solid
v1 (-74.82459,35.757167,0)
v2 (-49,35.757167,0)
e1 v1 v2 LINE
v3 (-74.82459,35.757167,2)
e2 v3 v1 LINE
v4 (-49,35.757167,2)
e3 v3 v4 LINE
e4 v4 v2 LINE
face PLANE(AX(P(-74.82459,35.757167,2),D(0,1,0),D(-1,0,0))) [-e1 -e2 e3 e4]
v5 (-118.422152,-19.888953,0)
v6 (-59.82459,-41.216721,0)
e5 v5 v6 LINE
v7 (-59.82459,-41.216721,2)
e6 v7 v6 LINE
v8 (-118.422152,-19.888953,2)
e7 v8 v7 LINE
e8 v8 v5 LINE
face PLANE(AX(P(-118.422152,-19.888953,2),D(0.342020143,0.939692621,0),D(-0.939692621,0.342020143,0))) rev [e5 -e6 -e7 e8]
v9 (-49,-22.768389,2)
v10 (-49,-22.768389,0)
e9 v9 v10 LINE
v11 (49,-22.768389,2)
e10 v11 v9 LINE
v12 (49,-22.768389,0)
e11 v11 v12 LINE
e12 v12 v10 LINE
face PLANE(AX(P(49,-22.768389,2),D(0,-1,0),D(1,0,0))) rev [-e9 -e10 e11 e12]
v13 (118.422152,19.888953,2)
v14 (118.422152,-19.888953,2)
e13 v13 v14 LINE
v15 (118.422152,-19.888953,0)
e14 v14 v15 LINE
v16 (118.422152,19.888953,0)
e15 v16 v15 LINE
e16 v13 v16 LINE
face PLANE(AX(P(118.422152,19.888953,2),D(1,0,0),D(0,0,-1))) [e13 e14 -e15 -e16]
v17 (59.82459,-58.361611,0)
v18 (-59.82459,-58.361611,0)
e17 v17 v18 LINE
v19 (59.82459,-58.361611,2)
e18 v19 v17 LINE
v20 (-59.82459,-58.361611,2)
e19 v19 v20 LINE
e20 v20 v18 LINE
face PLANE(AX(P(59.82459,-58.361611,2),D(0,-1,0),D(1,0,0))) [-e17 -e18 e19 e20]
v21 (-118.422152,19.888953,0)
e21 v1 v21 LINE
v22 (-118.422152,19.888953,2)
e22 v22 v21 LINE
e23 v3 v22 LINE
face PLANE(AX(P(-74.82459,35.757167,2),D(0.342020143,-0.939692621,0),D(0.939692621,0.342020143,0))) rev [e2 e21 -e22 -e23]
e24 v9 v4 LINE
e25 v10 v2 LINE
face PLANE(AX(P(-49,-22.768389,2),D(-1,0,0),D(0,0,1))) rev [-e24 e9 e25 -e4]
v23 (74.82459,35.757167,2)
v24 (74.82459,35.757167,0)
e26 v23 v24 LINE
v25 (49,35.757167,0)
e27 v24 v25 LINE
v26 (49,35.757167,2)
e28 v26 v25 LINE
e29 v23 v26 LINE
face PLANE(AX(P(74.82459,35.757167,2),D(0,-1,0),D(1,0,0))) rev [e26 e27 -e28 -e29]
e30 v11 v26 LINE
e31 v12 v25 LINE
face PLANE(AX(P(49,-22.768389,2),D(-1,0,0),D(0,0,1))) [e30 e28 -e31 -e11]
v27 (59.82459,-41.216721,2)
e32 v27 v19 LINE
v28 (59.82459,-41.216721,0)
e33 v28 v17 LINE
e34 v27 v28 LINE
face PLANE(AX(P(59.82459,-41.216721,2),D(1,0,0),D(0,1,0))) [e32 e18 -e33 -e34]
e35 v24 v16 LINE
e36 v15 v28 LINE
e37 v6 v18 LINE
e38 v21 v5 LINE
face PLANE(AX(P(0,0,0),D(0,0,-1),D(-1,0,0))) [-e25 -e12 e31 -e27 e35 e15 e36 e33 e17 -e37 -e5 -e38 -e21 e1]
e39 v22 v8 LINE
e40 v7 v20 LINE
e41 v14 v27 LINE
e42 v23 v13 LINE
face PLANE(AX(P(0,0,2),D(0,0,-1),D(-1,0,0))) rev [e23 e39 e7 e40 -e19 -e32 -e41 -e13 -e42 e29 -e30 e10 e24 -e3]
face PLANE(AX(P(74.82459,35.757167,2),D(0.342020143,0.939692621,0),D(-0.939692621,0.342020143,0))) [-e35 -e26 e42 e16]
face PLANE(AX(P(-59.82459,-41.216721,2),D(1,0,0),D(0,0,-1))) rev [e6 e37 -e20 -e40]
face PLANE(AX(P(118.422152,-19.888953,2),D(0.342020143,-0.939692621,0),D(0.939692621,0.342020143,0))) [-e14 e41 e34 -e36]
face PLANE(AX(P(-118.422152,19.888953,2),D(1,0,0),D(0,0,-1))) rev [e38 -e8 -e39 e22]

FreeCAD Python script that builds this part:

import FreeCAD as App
import Part
import Sketcher

V = App.Vector
Q = App.Units.Quantity

doc = App.newDocument("Part")
body = doc.addObject("PartDesign::Body", "Body")

sketch1 = body.newObject("Sketcher::SketchObject", "Sketch")
sketch1.AttachmentSupport = (doc.getObject("XY_Plane"), [""])
sketch1.MapMode = "FlatFace"
sketch1.addGeometry([
    Part.LineSegment(V(-60, -58, 0), V(60, -58, 0)),
    Part.LineSegment(V(60, -58, 0), V(60, -41, 0)),
    Part.LineSegment(V(60, -41, 0), V(118, -20, 0)),
    Part.LineSegment(V(118, -20, 0), V(118, 20, 0)),
    Part.LineSegment(V(118, 20, 0), V(75, 36, 0)),
    Part.LineSegment(V(75, 36, 0), V(49, 36, 0)),
    Part.LineSegment(V(49, 36, 0), V(49, -23, 0)),
    Part.LineSegment(V(49, -23, 0), V(-49, -23, 0)),
    Part.LineSegment(V(-49, -23, 0), V(-49, 36, 0)),
    Part.LineSegment(V(-49, 36, 0), V(-75, 36, 0)),
    Part.LineSegment(V(-75, 36, 0), V(-118, 20, 0)),
    Part.LineSegment(V(-118, 20, 0), V(-118, -20, 0)),
    Part.LineSegment(V(-118, -20, 0), V(-60, -41, 0)),
    Part.LineSegment(V(-60, -41, 0), V(-60, -58, 0)),
], False)
sketch1.addConstraint([
    Sketcher.Constraint("Coincident", 0, 2, 1, 1),
    Sketcher.Constraint("Coincident", 1, 2, 2, 1),
    Sketcher.Constraint("Coincident", 2, 2, 3, 1),
    Sketcher.Constraint("Coincident", 3, 2, 4, 1),
    Sketcher.Constraint("Coincident", 4, 2, 5, 1),
    Sketcher.Constraint("Coincident", 5, 2, 6, 1),
    Sketcher.Constraint("Coincident", 6, 2, 7, 1),
    Sketcher.Constraint("Coincident", 7, 2, 8, 1),
    Sketcher.Constraint("Coincident", 8, 2, 9, 1),
    Sketcher.Constraint("Coincident", 9, 2, 10, 1),
    Sketcher.Constraint("Coincident", 10, 2, 11, 1),
    Sketcher.Constraint("Coincident", 11, 2, 12, 1),
    Sketcher.Constraint("Coincident", 12, 2, 13, 1),
    Sketcher.Constraint("Coincident", 13, 2, 0, 1),
    Sketcher.Constraint("Horizontal", 0),
    Sketcher.Constraint("Vertical", 1),
    Sketcher.Constraint("Vertical", 3),
    Sketcher.Constraint("Horizontal", 5),
    Sketcher.Constraint("Vertical", 6),
    Sketcher.Constraint("Horizontal", 7),
    Sketcher.Constraint("Vertical", 8),
    Sketcher.Constraint("Horizontal", 9),
    Sketcher.Constraint("Vertical", 11),
    Sketcher.Constraint("Vertical", 13),
    Sketcher.Constraint("Symmetric", 2, 2, 10, 2, -1, 1),
    Sketcher.Constraint("Symmetric", 5, 2, 8, 2, -2),
    Sketcher.Constraint("Symmetric", 1, 2, 12, 2, -2),
    Sketcher.Constraint("Parallel", 2, 10),
    Sketcher.Constraint("Parallel", 4, 12),
    Sketcher.Constraint("Horizontal", 3, 2, 10, 2),
    Sketcher.Constraint("Horizontal", 2, 2, 11, 2),
    Sketcher.Constraint("DistanceX", 7, 2, 7, 1, 98.0),
    Sketcher.Constraint("Angle", 2, Q("20 deg")),
    Sketcher.Constraint("DistanceX", 1, 2, 4, 2, 15.0),
    Sketcher.Constraint("DistanceX", 0, 1, 0, 2, 119.649181),
    Sketcher.Constraint("DistanceY", 1, 1, 1, 2, 17.144891),
    Sketcher.Constraint("DistanceY", 3, 1, 3, 2, 39.777905),
    Sketcher.Constraint("DistanceY", 6, 2, 6, 1, 58.525556),
    Sketcher.Constraint("DistanceY", 0, 2, -1, 1, 58.361611),
])
pad1 = body.newObject("PartDesign::Pad", "Pad")
pad1.Profile = sketch1
pad1.Length = 2

doc.recompute()
